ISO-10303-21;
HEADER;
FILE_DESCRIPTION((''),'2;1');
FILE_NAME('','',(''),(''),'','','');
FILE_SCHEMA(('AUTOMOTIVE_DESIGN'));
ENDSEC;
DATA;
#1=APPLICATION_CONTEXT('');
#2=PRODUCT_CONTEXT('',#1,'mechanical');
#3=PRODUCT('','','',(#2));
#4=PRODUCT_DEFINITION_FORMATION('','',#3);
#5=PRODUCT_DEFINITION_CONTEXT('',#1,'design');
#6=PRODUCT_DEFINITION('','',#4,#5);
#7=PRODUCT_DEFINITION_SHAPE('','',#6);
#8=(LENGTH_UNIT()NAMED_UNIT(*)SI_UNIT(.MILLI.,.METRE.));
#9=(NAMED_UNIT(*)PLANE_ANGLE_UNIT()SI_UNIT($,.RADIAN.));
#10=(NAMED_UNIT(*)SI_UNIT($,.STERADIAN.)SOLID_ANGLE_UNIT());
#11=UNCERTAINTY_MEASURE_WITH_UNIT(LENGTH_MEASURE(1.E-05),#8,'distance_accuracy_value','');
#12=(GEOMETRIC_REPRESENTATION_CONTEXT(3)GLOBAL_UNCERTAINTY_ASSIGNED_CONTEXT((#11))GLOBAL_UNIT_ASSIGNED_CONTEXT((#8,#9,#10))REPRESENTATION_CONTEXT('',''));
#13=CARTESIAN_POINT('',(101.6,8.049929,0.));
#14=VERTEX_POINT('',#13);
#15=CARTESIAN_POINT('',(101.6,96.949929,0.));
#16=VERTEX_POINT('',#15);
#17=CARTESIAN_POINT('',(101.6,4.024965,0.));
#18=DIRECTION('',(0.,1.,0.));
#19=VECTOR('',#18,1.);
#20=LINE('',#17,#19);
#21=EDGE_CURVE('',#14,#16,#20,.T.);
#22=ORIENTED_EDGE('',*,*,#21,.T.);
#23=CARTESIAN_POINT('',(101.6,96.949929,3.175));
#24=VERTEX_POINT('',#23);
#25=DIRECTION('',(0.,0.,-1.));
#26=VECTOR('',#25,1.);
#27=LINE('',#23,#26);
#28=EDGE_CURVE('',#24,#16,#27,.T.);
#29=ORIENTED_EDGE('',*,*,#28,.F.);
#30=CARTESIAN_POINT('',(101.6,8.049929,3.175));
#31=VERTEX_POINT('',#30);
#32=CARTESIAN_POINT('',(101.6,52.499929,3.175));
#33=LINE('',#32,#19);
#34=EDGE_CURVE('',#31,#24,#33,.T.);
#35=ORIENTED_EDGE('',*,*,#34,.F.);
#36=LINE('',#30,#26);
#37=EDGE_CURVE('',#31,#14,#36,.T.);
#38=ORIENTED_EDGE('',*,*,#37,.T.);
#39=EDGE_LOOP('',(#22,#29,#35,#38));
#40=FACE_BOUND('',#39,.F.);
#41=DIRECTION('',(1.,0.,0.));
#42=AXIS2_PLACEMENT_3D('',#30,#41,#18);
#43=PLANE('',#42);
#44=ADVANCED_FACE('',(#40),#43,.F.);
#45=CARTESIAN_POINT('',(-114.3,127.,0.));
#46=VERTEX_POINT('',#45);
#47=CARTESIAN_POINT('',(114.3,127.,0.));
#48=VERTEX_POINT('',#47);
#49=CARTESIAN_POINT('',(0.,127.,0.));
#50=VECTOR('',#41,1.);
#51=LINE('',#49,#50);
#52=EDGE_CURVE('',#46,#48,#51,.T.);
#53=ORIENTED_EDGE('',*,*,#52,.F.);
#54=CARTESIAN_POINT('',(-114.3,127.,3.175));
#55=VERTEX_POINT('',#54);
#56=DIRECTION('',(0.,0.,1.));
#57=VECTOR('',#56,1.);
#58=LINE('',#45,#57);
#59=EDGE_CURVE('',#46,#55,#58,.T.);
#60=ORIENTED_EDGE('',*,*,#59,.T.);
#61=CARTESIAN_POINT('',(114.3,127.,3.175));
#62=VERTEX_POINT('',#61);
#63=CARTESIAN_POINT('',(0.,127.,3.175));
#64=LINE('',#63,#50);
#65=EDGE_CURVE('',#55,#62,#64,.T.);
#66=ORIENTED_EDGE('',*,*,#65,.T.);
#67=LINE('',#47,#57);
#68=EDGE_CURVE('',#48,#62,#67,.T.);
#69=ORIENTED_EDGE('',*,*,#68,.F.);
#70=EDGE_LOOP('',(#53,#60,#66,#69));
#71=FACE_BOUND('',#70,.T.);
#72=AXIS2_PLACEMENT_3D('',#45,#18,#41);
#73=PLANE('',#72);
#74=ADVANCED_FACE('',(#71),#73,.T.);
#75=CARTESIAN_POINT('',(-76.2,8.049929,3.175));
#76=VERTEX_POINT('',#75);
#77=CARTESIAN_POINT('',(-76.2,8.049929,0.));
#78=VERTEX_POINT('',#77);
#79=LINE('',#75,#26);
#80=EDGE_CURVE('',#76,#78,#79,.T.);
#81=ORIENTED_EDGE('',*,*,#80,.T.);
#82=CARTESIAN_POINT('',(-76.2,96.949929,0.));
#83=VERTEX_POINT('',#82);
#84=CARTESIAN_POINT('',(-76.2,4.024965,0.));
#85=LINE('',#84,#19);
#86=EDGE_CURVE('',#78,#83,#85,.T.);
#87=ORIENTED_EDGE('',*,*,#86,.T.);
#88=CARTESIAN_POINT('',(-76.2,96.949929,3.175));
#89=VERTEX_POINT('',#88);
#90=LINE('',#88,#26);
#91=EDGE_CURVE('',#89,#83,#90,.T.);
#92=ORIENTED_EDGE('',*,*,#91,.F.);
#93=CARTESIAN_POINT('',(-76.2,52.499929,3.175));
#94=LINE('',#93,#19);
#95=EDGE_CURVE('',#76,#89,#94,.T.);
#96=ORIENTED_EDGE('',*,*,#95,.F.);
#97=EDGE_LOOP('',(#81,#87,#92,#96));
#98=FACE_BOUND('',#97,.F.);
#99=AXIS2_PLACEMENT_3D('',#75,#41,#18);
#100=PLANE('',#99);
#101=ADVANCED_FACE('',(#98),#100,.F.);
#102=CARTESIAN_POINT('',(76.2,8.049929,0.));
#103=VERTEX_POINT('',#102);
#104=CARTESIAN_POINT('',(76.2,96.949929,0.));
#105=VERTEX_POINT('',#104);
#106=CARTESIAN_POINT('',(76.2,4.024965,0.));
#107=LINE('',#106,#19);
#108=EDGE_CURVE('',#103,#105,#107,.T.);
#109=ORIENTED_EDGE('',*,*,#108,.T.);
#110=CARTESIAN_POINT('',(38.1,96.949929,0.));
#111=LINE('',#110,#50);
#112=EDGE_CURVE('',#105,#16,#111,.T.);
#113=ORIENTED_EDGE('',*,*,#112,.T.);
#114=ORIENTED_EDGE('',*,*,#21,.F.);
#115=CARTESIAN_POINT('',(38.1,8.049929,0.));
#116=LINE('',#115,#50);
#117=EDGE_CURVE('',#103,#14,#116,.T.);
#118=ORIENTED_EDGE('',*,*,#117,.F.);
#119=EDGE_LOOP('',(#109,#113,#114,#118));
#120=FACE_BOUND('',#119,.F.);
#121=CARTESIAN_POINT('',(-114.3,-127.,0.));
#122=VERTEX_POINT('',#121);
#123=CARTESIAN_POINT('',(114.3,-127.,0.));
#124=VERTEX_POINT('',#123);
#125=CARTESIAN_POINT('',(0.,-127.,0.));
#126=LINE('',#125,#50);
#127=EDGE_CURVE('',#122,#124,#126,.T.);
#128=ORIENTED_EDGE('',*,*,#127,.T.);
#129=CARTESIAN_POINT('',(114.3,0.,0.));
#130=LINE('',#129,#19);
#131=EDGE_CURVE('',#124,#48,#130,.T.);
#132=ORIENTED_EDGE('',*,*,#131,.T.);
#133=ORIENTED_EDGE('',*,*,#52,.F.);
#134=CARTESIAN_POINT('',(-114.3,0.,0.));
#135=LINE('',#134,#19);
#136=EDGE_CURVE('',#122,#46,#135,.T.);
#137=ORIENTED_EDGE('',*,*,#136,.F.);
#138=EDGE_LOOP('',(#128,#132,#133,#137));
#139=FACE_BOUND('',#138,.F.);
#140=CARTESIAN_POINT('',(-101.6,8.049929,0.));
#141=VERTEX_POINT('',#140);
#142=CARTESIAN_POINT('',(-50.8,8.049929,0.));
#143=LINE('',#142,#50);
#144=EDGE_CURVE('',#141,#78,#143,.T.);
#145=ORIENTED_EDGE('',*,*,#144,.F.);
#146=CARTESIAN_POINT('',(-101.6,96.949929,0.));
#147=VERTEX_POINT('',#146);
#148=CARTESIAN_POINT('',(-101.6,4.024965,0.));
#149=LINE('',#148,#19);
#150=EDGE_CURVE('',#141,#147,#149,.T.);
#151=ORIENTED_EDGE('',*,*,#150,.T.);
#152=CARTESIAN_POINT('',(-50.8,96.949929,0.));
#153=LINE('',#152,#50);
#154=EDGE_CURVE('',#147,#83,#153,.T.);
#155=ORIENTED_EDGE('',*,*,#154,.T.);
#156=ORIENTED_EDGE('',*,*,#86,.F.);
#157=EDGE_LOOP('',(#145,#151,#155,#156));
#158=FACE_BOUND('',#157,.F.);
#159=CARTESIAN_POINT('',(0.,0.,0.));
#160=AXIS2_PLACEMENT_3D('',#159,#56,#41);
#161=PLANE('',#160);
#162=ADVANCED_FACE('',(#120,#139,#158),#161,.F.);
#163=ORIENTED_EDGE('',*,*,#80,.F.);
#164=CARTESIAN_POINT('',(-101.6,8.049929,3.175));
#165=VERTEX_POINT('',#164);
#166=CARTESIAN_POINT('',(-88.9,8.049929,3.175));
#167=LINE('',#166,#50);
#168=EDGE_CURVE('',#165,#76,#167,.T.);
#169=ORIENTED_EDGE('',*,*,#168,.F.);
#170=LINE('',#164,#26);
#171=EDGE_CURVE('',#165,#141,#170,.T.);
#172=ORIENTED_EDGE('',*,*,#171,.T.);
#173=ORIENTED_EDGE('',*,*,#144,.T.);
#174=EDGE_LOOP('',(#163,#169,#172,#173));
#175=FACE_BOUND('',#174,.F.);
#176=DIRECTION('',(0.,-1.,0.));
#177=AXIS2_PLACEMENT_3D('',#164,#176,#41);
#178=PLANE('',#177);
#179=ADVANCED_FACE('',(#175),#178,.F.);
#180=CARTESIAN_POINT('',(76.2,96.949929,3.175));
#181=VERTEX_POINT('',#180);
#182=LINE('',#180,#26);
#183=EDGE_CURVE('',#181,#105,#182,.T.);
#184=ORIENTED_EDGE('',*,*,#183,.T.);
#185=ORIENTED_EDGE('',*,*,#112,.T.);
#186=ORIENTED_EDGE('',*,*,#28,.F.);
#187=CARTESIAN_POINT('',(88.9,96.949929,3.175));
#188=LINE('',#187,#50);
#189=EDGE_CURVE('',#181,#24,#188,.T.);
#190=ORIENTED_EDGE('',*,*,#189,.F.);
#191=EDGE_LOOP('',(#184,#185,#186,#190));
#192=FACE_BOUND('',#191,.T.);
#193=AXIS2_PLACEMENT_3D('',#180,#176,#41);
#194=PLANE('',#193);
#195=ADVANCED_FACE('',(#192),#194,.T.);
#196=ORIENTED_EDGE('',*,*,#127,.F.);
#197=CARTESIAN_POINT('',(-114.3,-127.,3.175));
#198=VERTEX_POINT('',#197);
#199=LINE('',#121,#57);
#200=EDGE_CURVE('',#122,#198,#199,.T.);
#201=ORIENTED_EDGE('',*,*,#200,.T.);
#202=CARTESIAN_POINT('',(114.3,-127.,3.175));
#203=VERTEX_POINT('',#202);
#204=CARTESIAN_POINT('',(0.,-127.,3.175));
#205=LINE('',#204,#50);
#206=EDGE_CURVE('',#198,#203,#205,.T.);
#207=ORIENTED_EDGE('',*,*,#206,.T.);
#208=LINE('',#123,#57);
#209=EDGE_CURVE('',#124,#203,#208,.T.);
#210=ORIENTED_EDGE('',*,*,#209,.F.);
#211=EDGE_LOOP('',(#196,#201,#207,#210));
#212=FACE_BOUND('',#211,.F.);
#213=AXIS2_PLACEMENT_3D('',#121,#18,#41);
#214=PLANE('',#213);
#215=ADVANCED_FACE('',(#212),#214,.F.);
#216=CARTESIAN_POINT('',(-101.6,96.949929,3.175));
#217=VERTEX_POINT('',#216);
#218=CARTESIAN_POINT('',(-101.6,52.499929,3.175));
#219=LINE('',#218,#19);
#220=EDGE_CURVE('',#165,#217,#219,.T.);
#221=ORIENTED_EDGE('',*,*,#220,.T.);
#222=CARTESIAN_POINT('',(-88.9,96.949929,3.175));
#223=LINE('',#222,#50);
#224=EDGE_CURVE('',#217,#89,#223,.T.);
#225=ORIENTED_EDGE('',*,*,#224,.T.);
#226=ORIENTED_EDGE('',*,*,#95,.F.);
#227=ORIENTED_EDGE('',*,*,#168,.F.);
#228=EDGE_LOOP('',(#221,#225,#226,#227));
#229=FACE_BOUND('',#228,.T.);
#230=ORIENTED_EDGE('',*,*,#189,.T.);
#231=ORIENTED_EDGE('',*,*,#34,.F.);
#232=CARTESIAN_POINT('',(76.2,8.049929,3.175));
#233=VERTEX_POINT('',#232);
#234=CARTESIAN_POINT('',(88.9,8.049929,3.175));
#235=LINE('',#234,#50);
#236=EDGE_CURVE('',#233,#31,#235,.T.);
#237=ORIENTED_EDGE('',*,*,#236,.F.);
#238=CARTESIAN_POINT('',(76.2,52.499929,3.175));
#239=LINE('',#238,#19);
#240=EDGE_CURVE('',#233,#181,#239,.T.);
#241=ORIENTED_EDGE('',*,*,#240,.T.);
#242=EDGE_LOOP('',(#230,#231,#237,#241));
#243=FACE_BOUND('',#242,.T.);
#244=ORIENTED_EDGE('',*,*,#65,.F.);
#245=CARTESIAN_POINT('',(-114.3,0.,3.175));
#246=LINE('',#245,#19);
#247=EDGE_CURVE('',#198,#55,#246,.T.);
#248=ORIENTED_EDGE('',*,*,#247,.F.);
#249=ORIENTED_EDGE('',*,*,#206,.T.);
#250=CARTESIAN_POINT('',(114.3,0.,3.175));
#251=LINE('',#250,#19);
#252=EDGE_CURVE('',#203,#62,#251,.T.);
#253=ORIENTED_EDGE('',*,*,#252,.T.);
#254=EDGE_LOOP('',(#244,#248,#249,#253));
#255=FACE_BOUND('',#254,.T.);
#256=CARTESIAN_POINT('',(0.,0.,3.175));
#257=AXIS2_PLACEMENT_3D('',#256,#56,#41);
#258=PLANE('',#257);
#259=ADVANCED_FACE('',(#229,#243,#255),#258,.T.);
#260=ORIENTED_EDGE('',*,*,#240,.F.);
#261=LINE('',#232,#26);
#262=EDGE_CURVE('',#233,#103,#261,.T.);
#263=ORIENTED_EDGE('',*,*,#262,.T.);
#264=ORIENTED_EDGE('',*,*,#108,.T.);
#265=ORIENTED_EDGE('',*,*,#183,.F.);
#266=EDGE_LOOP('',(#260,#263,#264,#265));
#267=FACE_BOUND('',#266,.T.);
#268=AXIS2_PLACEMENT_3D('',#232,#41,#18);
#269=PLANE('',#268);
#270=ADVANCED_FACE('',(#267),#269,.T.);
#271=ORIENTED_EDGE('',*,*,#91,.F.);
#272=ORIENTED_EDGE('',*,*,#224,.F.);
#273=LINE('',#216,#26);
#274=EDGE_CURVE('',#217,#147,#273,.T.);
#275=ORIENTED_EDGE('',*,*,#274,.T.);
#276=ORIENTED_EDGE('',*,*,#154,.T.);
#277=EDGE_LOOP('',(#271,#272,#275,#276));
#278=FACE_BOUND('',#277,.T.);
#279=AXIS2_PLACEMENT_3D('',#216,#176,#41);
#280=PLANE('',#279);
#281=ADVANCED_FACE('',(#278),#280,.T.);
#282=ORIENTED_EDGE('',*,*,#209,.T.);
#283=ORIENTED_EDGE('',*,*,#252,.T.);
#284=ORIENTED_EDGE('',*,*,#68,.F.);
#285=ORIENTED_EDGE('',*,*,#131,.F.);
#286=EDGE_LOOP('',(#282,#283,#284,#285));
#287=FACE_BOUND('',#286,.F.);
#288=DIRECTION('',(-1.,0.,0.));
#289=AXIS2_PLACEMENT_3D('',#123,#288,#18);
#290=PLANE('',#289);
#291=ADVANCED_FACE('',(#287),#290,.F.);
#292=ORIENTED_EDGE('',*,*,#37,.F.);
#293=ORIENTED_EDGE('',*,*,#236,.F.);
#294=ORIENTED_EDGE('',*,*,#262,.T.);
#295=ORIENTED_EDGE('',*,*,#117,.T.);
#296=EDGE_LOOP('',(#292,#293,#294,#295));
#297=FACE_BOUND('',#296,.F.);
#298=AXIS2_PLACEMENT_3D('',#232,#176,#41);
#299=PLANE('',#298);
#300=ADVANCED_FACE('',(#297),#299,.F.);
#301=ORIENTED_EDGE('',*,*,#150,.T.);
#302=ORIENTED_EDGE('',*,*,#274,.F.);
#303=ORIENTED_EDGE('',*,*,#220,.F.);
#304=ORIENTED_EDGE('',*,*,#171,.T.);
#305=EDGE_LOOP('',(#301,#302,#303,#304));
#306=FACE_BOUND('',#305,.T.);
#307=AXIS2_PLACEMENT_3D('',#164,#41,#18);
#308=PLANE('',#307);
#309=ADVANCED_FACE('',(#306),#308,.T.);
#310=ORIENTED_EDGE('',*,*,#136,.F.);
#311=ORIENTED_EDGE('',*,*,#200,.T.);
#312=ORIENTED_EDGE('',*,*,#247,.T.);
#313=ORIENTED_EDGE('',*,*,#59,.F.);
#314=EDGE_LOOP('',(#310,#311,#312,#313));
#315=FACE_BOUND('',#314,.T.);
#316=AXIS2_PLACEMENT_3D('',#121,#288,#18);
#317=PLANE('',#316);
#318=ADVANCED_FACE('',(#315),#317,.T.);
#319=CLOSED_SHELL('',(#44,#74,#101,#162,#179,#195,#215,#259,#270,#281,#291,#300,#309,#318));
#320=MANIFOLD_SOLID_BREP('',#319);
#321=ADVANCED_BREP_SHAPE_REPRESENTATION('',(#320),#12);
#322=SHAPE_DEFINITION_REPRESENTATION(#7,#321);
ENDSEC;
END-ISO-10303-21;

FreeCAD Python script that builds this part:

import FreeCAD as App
import Part
import Sketcher

V = App.Vector
Q = App.Units.Quantity

doc = App.newDocument("Part")
params = doc.addObject("Spreadsheet::Sheet", "Params")
for row, (alias, value) in enumerate([
    ("sketch1_width", "9 in"),
    ("sketch1_height", "10 in"),
    ("pad1_length", "0.125 in"),
    ("sketch2_width", "1 in"),
    ("sketch2_height", "3.5 in"),
    ("pocket1_length", "1 in"),
], start=1):
    params.set(f"A{row}", alias)
    params.set(f"B{row}", "=" + value)
    params.setAlias(f"B{row}", alias)

body = doc.addObject("PartDesign::Body", "Body")

# Sketch on XY plane
sketch1 = body.newObject("Sketcher::SketchObject", "Sketch")
sketch1.AttachmentSupport = (doc.getObject("XY_Plane"), [""])
sketch1.MapMode = "FlatFace"
sketch1.addGeometry([
    Part.LineSegment(V(-114, 127, 0), V(-114, -127, 0)),
    Part.LineSegment(V(-114, -127, 0), V(114, -127, 0)),
    Part.LineSegment(V(114, -127, 0), V(114, 127, 0)),
    Part.LineSegment(V(114, 127, 0), V(-114, 127, 0)),
], False)
sketch1.addConstraint([
    Sketcher.Constraint("Coincident", 0, 2, 1, 1),
    Sketcher.Constraint("Coincident", 1, 2, 2, 1),
    Sketcher.Constraint("Coincident", 2, 2, 3, 1),
    Sketcher.Constraint("Coincident", 3, 2, 0, 1),
    Sketcher.Constraint("Vertical", 0),
    Sketcher.Constraint("Horizontal", 1),
    Sketcher.Constraint("Vertical", 2),
    Sketcher.Constraint("Horizontal", 3),
    Sketcher.Constraint("Symmetric", 0, 2, 2, 2, -1, 1),
    Sketcher.Constraint("DistanceX", 1, 1, 1, 2, Q("9 in")),
    Sketcher.Constraint("DistanceY", 0, 2, 0, 1, Q("10 in")),
])
sketch1.setExpression("Constraints[9]", "Params.sketch1_width")
sketch1.setExpression("Constraints[10]", "Params.sketch1_height")
pad1 = body.newObject("PartDesign::Pad", "Pad")
pad1.Profile = sketch1
pad1.setExpression("Length", "Params.pad1_length")

# Sketch on XY plane
sketch2 = body.newObject("Sketcher::SketchObject", "Sketch001")
sketch2.AttachmentSupport = (doc.getObject("XY_Plane"), [""])
sketch2.MapMode = "FlatFace"
sketch2.AttachmentOffset = App.Placement(V(0, 0, 0.125 * 25.4), App.Rotation())
sketch2.addGeometry([
    Part.LineSegment(V(-102, 97, 0), V(-102, 8, 0)),  # 0
    Part.LineSegment(V(-102, 8, 0), V(-76, 8, 0)),  # 1
    Part.LineSegment(V(-76, 8, 0), V(-76, 97, 0)),  # 2
    Part.LineSegment(V(-76, 97, 0), V(-102, 97, 0)),  # 3
    Part.LineSegment(V(76, 97, 0), V(76, 8, 0)),  # 4
    Part.LineSegment(V(76, 8, 0), V(102, 8, 0)),  # 5
    Part.LineSegment(V(102, 8, 0), V(102, 97, 0)),  # 6
    Part.LineSegment(V(102, 97, 0), V(76, 97, 0)),  # 7
], False)
sketch2.addConstraint([
    Sketcher.Constraint("Coincident", 0, 2, 1, 1),
    Sketcher.Constraint("Coincident", 1, 2, 2, 1),
    Sketcher.Constraint("Coincident", 2, 2, 3, 1),
    Sketcher.Constraint("Coincident", 3, 2, 0, 1),
    Sketcher.Constraint("Coincident", 4, 2, 5, 1),
    Sketcher.Constraint("Coincident", 5, 2, 6, 1),
    Sketcher.Constraint("Coincident", 6, 2, 7, 1),
    Sketcher.Constraint("Coincident", 7, 2, 4, 1),
    Sketcher.Constraint("Vertical", 0),
    Sketcher.Constraint("Horizontal", 1),
    Sketcher.Constraint("Vertical", 2),
    Sketcher.Constraint("Horizontal", 3),
    Sketcher.Constraint("Vertical", 4),
    Sketcher.Constraint("Horizontal", 5),
    Sketcher.Constraint("Vertical", 6),
    Sketcher.Constraint("Horizontal", 7),
    Sketcher.Constraint("Symmetric", 1, 2, 4, 2, -2),
    Sketcher.Constraint("Symmetric", 3, 2, 6, 2, -2),
    Sketcher.Constraint("DistanceX", 1, 1, 1, 2, Q("1 in")),
    Sketcher.Constraint("DistanceY", 0, 2, 0, 1, Q("3.5 in")),
    Sketcher.Constraint("DistanceX", 0, 2, -1, 1, Q("4 in")),
    Sketcher.Constraint("DistanceY", -1, 1, 0, 2, Q("8.049929 mm")),
])
sketch2.setExpression("Constraints[18]", "Params.sketch2_width")
sketch2.setExpression("Constraints[19]", "Params.sketch2_height")
pocket1 = body.newObject("PartDesign::Pocket", "Pocket")
pocket1.Profile = sketch2
pocket1.setExpression("Length", "Params.pocket1_length")

doc.recompute()
